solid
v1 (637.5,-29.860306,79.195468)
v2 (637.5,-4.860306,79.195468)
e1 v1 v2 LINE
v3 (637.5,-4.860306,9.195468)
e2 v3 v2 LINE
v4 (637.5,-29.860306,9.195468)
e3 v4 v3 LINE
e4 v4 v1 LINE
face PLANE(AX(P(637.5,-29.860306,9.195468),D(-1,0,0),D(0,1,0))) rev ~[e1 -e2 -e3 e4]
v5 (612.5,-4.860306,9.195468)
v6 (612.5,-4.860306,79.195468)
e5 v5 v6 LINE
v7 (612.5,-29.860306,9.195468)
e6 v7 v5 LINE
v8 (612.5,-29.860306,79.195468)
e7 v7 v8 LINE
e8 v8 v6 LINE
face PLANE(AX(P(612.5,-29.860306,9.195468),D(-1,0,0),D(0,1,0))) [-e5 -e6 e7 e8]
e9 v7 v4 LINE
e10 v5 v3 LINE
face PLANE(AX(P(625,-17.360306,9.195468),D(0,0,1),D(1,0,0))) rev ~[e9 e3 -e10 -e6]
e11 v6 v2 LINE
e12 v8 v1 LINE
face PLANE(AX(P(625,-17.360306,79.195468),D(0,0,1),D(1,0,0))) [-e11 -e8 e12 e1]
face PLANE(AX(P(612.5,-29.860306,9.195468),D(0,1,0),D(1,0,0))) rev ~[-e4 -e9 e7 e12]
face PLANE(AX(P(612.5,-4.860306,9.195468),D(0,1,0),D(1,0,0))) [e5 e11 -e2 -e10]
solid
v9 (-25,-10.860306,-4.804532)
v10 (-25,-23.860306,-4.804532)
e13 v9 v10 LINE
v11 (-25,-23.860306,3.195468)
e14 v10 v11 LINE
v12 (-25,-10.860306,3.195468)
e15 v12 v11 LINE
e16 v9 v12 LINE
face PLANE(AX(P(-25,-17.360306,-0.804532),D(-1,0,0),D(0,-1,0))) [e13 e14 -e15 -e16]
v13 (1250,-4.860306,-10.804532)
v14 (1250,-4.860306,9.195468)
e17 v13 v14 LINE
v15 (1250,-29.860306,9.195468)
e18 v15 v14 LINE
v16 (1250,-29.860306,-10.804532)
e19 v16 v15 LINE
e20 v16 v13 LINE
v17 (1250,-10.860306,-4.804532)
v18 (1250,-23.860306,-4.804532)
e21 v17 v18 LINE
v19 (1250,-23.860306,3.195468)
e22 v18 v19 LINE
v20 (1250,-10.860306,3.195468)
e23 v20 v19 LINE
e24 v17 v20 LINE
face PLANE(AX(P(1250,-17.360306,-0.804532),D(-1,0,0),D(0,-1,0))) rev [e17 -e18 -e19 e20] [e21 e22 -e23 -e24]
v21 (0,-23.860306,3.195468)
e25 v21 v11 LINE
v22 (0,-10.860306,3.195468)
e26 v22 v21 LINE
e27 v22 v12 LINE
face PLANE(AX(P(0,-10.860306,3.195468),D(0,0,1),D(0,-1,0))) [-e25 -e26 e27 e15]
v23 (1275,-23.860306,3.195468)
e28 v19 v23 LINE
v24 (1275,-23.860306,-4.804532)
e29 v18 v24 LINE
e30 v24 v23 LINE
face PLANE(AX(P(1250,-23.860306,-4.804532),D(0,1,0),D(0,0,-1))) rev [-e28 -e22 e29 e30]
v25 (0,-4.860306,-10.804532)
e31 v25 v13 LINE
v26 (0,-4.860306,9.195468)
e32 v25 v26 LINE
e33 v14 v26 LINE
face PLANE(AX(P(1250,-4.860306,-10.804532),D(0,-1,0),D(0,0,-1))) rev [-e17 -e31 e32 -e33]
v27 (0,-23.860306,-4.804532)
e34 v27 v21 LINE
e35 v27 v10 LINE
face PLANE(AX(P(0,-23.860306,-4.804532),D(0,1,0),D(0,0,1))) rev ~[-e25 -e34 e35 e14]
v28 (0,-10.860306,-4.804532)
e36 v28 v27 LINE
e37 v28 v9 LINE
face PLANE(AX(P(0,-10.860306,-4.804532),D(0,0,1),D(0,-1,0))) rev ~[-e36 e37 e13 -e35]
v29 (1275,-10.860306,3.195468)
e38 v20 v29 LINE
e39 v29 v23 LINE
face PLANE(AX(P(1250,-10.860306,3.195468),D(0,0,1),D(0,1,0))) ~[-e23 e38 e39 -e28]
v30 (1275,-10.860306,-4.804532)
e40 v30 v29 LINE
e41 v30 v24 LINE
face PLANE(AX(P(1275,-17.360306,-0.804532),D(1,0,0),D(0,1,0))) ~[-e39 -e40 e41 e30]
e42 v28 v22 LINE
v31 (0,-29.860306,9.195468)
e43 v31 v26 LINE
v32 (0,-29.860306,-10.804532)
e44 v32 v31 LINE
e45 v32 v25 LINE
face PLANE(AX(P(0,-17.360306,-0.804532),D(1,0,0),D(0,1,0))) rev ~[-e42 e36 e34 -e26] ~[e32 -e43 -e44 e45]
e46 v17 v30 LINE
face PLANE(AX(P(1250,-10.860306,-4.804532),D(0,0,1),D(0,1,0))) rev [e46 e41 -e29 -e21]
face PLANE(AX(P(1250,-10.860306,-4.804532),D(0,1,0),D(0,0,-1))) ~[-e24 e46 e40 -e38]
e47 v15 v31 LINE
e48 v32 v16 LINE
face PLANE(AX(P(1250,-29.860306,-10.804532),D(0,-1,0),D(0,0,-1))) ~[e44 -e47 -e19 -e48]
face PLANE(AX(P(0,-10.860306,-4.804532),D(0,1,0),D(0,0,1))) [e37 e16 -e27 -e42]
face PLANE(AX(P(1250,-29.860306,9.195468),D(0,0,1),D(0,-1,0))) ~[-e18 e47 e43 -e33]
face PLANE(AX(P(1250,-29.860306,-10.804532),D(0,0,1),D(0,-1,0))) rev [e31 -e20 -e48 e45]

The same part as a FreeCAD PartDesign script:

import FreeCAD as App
import Part
import Sketcher
from FreeCAD import Vector

doc = App.newDocument("Part")
body = doc.addObject("PartDesign::Body", "Body")

# Sketch on YZ plane
sketch1 = doc.addObject("Sketcher::SketchObject", "Sketch")
body.addObject(sketch1)
sketch1.AttachmentSupport = (doc.YZ_Plane, [""])
sketch1.MapMode = "FlatFace"
sketch1.addGeometry(Part.LineSegment(Vector(-30, 9, 0), Vector(-30, -11, 0)), False)
sketch1.addGeometry(Part.LineSegment(Vector(-30, -11, 0), Vector(-5, -11, 0)), False)
sketch1.addGeometry(Part.LineSegment(Vector(-5, -11, 0), Vector(-5, 9, 0)), False)
sketch1.addGeometry(Part.LineSegment(Vector(-5, 9, 0), Vector(-30, 9, 0)), False)
sketch1.addConstraint(Sketcher.Constraint("Coincident", 0, 2, 1, 1))
sketch1.addConstraint(Sketcher.Constraint("Coincident", 1, 2, 2, 1))
sketch1.addConstraint(Sketcher.Constraint("Coincident", 2, 2, 3, 1))
sketch1.addConstraint(Sketcher.Constraint("Coincident", 3, 2, 0, 1))
sketch1.addConstraint(Sketcher.Constraint("Vertical", 0))
sketch1.addConstraint(Sketcher.Constraint("Horizontal", 1))
sketch1.addConstraint(Sketcher.Constraint("Vertical", 2))
sketch1.addConstraint(Sketcher.Constraint("Horizontal", 3))
sketch1.addConstraint(Sketcher.Constraint("DistanceX", 1, 1, 1, 2, 25.0))
sketch1.addConstraint(Sketcher.Constraint("DistanceY", 0, 2, 0, 1, 20.0))
sketch1.addConstraint(Sketcher.Constraint("DistanceX", 0, 2, -1, 1, 29.860306))
sketch1.addConstraint(Sketcher.Constraint("DistanceY", 0, 2, -1, 1, 10.804532))
pad1 = doc.addObject("PartDesign::Pad", "Pad")
body.addObject(pad1)
pad1.Profile = sketch1
pad1.Length = 625

# Sketch on YZ plane
sketch2 = doc.addObject("Sketcher::SketchObject", "Sketch001")
body.addObject(sketch2)
sketch2.AttachmentSupport = (doc.YZ_Plane, [""])
sketch2.MapMode = "FlatFace"
sketch2.addGeometry(Part.LineSegment(Vector(-11, 3, 0), Vector(-11, -5, 0)), False)
sketch2.addGeometry(Part.LineSegment(Vector(-11, -5, 0), Vector(-24, -5, 0)), False)
sketch2.addGeometry(Part.LineSegment(Vector(-24, -5, 0), Vector(-24, 3, 0)), False)
sketch2.addGeometry(Part.LineSegment(Vector(-24, 3, 0), Vector(-11, 3, 0)), False)
sketch2.addConstraint(Sketcher.Constraint("Coincident", 0, 2, 1, 1))
sketch2.addConstraint(Sketcher.Constraint("Coincident", 1, 2, 2, 1))
sketch2.addConstraint(Sketcher.Constraint("Coincident", 2, 2, 3, 1))
sketch2.addConstraint(Sketcher.Constraint("Coincident", 3, 2, 0, 1))
sketch2.addConstraint(Sketcher.Constraint("Vertical", 0))
sketch2.addConstraint(Sketcher.Constraint("Horizontal", 1))
sketch2.addConstraint(Sketcher.Constraint("Vertical", 2))
sketch2.addConstraint(Sketcher.Constraint("Horizontal", 3))
sketch2.addConstraint(Sketcher.Constraint("DistanceX", 1, 2, 1, 1, 13.0))
sketch2.addConstraint(Sketcher.Constraint("DistanceY", 0, 2, 0, 1, 8.0))
sketch2.addConstraint(Sketcher.Constraint("DistanceY", -1, 1, 2, 2, 3.195468))
sketch2.addConstraint(Sketcher.Constraint("DistanceX", 0, 2, -1, 1, 10.860306))
pad2 = doc.addObject("PartDesign::Pad", "Pad001")
body.addObject(pad2)
pad2.Profile = sketch2
pad2.Length = 25
pad2.Reversed = True
body2 = doc.addObject("PartDesign::Body", "Body001")
doc.recompute()

body2.BaseFeature = body
doc.recompute()

mirroring = doc.addObject("Part::Mirroring", "Mirroring")
mirroring.Source = body
mirroring.Base = Vector(625, -17.360306, -0.804532)
mirroring.Normal = Vector(1, 0, 0)
body3 = doc.addObject("PartDesign::Body", "Body002")
body3.BaseFeature = mirroring
boolean = doc.addObject("PartDesign::Boolean", "Boolean")
body2.addObject(boolean)
boolean.Type = "Fuse"
boolean.addObjects([body3])
doc.recompute()
body4 = doc.addObject("PartDesign::Body", "Body003")

# Sketch on XY plane
sketch3 = doc.addObject("Sketcher::SketchObject", "Sketch002")
body4.addObject(sketch3)
sketch3.AttachmentSupport = (doc.getObject("XY_Plane003"), [""])
sketch3.MapMode = "FlatFace"
sketch3.AttachmentOffset = App.Placement(Vector(0, 0, 9.195468), App.Rotation())
sketch3.addGeometry(Part.LineSegment(Vector(612, -5, 0), Vector(612, -30, 0)), False)
sketch3.addGeometry(Part.LineSegment(Vector(612, -30, 0), Vector(638, -30, 0)), False)
sketch3.addGeometry(Part.LineSegment(Vector(638, -30, 0), Vector(638, -5, 0)), False)
sketch3.addGeometry(Part.LineSegment(Vector(638, -5, 0), Vector(612, -5, 0)), False)
sketch3.addConstraint(Sketcher.Constraint("Coincident", 0, 2, 1, 1))
sketch3.addConstraint(Sketcher.Constraint("Coincident", 1, 2, 2, 1))
sketch3.addConstraint(Sketcher.Constraint("Coincident", 2, 2, 3, 1))
sketch3.addConstraint(Sketcher.Constraint("Coincident", 3, 2, 0, 1))
sketch3.addConstraint(Sketcher.Constraint("Vertical", 0))
sketch3.addConstraint(Sketcher.Constraint("Horizontal", 1))
sketch3.addConstraint(Sketcher.Constraint("Vertical", 2))
sketch3.addConstraint(Sketcher.Constraint("Horizontal", 3))
sketch3.addConstraint(Sketcher.Constraint("Equal", 3, 0))
sketch3.addConstraint(Sketcher.Constraint("DistanceX", 1, 1, 1, 2, 25.0))
sketch3.addConstraint(Sketcher.Constraint("DistanceX", -1, 1, 0, 2, 612.5))
sketch3.addConstraint(Sketcher.Constraint("DistanceY", 0, 2, -1, 1, 29.860306))
pad3 = doc.addObject("PartDesign::Pad", "Pad002")
body4.addObject(pad3)
pad3.Profile = sketch3
pad3.Length = 70
mirroring.Visibility = False

doc.recompute()
